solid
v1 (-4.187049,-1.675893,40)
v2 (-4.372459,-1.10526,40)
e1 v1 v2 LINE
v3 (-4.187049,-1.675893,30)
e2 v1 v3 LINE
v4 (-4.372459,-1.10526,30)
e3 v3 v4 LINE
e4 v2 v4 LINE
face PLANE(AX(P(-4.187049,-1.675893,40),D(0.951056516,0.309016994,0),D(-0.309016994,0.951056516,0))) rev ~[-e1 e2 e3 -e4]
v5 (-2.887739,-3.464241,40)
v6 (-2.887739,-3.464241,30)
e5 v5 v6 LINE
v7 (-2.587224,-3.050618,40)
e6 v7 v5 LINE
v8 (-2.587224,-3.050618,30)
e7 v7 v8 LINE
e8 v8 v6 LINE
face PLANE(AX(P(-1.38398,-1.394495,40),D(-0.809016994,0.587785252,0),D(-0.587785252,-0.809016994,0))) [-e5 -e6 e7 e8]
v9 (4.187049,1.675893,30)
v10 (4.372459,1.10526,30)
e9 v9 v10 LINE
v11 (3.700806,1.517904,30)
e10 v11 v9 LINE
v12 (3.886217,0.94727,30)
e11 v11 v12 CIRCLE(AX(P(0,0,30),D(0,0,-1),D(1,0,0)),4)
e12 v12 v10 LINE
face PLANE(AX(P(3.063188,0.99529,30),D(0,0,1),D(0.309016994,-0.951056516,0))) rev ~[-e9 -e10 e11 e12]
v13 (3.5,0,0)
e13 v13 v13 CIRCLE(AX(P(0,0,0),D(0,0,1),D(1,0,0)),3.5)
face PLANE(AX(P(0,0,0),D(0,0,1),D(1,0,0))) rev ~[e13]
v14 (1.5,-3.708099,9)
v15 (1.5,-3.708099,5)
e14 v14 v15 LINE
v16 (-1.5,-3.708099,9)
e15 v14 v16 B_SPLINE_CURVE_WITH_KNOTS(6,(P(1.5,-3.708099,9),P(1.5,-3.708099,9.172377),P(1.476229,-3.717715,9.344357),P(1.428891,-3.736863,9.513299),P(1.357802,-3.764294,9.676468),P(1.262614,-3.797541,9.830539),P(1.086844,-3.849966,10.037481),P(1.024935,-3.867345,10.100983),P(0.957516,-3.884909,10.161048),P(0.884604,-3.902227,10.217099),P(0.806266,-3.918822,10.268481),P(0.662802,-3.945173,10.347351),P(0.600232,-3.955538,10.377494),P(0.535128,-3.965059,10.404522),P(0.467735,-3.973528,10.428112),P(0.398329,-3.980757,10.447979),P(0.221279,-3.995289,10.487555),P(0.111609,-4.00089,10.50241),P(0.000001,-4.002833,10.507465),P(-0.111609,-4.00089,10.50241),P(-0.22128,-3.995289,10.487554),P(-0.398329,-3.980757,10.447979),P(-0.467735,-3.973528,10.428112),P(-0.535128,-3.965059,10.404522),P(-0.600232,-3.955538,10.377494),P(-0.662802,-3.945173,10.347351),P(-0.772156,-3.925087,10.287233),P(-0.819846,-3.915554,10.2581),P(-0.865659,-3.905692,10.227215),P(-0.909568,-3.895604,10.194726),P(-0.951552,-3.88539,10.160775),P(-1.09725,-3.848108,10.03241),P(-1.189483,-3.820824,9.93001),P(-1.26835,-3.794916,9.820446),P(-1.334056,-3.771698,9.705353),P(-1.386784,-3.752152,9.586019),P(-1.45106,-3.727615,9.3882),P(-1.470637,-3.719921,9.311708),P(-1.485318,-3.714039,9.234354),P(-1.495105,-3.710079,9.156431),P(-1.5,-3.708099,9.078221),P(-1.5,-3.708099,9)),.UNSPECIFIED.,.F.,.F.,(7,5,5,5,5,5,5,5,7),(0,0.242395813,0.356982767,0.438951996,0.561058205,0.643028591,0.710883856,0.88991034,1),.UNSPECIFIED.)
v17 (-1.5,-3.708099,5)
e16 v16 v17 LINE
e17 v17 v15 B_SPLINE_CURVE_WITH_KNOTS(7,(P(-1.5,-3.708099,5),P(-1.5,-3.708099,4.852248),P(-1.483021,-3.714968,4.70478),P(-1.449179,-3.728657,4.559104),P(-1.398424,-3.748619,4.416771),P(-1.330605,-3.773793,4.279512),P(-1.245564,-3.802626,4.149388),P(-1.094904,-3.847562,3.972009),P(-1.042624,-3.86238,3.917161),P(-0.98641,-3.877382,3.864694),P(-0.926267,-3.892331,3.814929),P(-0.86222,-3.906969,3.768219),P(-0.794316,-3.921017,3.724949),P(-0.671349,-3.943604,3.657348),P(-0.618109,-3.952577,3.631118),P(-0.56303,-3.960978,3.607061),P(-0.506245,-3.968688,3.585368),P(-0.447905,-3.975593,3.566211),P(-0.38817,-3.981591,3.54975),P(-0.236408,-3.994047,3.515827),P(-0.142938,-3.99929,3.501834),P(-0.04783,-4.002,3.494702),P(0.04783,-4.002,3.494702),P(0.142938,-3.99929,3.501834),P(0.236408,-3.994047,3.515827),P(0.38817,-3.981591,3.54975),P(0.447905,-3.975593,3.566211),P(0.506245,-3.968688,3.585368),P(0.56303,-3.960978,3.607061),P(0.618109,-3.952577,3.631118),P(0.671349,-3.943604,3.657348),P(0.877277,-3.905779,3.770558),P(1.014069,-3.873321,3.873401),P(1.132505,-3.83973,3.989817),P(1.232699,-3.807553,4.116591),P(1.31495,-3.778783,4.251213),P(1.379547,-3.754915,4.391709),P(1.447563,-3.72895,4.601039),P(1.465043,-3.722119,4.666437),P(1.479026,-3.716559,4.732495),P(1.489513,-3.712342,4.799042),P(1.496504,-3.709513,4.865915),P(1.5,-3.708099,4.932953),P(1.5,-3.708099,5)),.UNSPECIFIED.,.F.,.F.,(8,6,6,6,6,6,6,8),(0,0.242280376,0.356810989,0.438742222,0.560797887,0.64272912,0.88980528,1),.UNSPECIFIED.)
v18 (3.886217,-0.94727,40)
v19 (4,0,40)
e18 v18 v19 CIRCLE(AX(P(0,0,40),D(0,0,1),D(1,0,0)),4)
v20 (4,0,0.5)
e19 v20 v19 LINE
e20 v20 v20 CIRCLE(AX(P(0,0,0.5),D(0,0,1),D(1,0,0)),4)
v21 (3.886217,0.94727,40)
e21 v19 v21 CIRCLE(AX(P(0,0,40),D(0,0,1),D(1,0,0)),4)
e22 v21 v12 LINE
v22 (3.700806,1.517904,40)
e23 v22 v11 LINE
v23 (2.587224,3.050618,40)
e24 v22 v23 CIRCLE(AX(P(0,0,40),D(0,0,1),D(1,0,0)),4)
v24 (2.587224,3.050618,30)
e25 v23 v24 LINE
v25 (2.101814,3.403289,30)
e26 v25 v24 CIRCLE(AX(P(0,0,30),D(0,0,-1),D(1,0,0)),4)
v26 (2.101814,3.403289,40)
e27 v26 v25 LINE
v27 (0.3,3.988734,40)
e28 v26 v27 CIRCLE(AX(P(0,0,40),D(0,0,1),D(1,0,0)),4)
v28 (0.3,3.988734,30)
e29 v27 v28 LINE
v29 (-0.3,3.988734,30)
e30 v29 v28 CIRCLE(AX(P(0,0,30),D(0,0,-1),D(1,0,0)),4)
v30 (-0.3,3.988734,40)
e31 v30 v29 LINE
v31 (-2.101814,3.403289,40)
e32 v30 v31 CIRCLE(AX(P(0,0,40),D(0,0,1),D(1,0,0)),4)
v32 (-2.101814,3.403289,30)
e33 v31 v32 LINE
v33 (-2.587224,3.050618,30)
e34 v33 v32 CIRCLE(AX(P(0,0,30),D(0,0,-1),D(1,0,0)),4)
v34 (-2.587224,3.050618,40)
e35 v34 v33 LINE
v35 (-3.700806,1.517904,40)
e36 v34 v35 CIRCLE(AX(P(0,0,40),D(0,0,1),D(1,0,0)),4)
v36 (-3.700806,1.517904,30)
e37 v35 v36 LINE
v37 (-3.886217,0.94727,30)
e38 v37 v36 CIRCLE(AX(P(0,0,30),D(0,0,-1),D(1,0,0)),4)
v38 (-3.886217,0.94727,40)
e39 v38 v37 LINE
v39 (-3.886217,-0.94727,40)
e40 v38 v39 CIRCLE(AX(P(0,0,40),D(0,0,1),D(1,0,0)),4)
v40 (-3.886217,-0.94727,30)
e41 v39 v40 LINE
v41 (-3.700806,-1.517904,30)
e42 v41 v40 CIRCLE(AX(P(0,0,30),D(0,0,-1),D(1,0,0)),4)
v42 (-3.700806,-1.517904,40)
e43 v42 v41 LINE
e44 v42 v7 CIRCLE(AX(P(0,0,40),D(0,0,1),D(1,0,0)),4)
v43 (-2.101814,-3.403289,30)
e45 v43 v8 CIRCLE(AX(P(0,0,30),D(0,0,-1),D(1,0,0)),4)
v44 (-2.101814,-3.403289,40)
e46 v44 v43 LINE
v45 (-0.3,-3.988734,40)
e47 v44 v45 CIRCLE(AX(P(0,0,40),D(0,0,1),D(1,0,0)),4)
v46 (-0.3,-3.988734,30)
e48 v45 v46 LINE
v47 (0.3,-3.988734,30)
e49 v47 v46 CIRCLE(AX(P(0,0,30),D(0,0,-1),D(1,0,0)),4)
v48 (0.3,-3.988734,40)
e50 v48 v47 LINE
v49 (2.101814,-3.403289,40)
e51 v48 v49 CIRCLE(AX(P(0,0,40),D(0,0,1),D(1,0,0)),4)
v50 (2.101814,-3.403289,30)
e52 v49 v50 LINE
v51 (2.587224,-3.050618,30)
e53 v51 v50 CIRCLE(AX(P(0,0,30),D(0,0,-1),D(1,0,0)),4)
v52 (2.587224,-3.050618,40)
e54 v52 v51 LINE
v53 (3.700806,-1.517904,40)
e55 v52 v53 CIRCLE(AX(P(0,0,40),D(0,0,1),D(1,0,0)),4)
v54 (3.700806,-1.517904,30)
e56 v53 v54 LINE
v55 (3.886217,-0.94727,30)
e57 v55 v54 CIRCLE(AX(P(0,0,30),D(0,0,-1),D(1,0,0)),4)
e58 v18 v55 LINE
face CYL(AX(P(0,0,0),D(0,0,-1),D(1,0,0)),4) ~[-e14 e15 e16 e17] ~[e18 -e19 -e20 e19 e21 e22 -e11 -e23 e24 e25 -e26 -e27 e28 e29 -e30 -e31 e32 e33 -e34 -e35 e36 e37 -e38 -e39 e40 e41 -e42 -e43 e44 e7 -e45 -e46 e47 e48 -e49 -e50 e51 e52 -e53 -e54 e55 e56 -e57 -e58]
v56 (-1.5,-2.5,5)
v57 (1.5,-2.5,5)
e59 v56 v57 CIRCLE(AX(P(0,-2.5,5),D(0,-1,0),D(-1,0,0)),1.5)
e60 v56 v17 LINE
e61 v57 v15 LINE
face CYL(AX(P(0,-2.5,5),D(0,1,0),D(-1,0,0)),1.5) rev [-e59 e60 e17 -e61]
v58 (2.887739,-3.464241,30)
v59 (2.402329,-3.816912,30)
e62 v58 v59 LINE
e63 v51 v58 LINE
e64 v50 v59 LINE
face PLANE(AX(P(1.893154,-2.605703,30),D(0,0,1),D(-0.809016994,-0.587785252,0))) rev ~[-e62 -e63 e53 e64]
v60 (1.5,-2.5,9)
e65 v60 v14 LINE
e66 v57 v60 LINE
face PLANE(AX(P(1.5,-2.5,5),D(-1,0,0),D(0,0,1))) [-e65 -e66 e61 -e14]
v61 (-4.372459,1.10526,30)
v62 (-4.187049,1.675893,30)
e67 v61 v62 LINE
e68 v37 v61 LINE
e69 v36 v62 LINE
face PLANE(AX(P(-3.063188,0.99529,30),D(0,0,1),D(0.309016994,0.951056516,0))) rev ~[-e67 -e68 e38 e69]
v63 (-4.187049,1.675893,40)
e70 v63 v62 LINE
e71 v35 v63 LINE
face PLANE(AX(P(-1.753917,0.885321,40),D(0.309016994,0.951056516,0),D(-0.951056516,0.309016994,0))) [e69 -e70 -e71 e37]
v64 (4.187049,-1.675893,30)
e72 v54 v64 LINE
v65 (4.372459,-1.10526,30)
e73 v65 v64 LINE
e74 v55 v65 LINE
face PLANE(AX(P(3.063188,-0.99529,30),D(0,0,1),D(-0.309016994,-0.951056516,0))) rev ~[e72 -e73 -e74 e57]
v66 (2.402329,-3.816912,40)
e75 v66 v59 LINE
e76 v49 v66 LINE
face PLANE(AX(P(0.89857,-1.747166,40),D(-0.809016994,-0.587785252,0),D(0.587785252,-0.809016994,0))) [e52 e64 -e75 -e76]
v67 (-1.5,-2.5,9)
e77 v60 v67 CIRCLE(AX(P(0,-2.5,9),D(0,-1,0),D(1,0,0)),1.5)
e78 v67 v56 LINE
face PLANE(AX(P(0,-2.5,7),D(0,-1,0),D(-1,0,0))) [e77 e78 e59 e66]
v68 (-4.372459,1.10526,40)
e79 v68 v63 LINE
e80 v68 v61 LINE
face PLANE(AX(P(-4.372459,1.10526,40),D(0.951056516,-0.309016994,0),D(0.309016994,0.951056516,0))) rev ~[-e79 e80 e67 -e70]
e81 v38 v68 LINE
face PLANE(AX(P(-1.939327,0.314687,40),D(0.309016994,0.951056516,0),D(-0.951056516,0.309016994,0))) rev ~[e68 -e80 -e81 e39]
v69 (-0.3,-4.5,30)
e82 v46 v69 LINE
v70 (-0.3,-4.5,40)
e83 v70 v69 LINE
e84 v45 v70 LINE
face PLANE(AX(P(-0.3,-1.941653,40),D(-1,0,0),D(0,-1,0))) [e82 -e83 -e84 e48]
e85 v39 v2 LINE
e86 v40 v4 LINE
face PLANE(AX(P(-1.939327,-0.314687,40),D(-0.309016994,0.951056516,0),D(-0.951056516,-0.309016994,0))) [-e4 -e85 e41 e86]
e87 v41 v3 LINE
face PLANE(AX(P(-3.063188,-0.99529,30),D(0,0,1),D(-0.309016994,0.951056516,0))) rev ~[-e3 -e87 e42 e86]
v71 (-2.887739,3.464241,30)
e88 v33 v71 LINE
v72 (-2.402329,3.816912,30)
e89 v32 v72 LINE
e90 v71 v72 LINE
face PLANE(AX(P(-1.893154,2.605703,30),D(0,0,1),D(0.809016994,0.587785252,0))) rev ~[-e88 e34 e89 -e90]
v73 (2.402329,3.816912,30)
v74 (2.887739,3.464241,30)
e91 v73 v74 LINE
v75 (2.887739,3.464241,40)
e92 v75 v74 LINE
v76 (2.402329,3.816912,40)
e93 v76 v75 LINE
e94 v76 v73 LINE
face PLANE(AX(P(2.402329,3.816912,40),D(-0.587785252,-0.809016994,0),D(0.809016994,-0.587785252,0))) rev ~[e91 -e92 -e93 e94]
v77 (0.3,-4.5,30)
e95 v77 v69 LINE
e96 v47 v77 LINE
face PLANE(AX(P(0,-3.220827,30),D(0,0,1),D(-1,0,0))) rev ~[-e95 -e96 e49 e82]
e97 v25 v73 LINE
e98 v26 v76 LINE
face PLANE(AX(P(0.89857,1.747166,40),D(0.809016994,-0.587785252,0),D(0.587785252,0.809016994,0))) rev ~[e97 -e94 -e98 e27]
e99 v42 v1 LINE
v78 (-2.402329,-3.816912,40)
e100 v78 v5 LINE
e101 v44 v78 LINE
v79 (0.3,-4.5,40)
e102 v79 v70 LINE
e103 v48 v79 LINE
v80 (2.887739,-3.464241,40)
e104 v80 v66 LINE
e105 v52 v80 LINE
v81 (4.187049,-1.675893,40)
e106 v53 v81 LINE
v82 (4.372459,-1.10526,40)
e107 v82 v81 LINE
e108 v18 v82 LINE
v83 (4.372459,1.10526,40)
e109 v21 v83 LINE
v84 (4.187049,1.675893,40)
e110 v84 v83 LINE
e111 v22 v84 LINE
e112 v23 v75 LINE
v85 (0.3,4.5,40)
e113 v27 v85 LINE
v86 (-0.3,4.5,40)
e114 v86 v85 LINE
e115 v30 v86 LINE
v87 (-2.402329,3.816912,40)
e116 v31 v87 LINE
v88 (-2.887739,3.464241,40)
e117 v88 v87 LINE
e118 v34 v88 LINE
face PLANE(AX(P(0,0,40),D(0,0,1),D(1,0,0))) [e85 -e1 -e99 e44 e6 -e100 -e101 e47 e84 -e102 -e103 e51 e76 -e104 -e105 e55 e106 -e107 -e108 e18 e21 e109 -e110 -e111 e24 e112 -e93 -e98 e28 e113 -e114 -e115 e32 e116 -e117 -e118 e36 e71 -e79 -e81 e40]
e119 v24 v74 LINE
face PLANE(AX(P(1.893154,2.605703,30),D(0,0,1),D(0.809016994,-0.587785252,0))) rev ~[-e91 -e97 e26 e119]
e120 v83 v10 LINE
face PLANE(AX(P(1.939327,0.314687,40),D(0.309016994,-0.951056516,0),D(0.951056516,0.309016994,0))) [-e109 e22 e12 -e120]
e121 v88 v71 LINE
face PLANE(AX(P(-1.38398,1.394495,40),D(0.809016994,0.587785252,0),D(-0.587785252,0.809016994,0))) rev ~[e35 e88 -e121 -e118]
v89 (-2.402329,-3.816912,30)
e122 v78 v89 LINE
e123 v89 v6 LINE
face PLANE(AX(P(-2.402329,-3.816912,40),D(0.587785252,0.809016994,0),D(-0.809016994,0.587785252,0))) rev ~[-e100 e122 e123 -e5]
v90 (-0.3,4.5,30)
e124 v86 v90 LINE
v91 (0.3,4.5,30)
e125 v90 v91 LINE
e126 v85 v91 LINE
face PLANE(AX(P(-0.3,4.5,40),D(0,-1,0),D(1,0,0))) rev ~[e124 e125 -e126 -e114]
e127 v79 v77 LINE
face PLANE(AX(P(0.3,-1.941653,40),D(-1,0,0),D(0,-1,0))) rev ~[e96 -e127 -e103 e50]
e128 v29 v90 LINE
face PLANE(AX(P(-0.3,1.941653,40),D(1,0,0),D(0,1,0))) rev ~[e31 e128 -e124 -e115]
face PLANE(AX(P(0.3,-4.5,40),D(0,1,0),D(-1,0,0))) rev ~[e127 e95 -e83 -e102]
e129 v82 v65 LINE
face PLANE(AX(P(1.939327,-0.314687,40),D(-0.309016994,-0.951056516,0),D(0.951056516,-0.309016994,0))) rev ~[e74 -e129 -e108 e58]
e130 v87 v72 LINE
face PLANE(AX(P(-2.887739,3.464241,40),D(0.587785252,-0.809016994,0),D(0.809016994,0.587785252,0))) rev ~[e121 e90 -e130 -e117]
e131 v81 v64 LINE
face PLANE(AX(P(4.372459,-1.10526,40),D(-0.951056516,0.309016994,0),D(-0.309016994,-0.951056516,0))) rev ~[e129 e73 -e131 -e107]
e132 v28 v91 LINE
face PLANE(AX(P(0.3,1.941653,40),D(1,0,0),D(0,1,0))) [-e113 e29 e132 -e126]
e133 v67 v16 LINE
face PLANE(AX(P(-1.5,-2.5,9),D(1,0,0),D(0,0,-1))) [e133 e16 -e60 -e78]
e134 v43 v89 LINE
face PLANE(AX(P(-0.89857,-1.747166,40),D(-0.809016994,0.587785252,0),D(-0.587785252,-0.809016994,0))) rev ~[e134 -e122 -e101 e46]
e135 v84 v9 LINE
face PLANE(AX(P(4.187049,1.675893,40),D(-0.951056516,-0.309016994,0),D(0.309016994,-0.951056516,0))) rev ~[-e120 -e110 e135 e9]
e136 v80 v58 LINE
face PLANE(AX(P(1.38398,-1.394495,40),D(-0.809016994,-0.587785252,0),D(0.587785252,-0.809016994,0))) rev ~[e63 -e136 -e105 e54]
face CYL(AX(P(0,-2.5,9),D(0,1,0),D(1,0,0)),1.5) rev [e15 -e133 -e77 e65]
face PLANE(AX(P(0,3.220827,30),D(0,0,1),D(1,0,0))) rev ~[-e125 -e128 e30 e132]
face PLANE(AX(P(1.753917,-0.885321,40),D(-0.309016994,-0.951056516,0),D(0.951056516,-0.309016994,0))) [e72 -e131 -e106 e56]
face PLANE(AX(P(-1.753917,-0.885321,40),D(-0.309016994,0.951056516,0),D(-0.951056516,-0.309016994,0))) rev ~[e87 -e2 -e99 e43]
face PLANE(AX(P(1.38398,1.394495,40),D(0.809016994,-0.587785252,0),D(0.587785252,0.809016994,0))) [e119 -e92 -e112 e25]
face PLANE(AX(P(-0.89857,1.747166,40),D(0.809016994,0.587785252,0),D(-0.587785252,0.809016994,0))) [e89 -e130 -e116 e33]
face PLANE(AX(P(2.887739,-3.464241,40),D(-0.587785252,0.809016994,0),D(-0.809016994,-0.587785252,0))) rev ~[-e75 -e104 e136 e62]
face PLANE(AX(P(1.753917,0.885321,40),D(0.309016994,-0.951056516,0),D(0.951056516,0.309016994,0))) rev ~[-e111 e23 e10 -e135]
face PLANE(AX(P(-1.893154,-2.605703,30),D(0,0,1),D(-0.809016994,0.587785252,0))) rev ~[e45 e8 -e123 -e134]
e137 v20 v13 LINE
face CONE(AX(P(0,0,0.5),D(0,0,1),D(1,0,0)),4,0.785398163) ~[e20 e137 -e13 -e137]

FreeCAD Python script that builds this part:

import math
import FreeCAD as App
import Part
import Sketcher
from FreeCAD import Vector


def edges_at(feature, points):
    """Names of the edges that pass closest to the given points."""
    edges = feature.Shape.Edges
    near = lambda p: min(range(len(edges)), key=lambda i: edges[i].distToShape(Part.Vertex(*p))[0])
    return sorted({f"Edge{near(p) + 1}" for p in points})

doc = App.newDocument("Part")
body = doc.addObject("PartDesign::Body", "Body")

# Sketch on XY plane
sketch1 = doc.addObject("Sketcher::SketchObject", "Sketch")
body.addObject(sketch1)
sketch1.AttachmentSupport = (doc.XY_Plane, [""])
sketch1.MapMode = "FlatFace"
sketch1.addGeometry(Part.Circle(Vector(0, 0, 0), Vector(0, 0, 1), 4), False)
sketch1.addConstraint([
    Sketcher.Constraint("Coincident", 0, 3, -1, 1),
    Sketcher.Constraint("Diameter", 0, 8.0),
])
pad1 = doc.addObject("PartDesign::Pad", "Pad")
body.addObject(pad1)
pad1.Profile = sketch1
pad1.Length = 40

# Sketch on XZ plane
sketch2 = doc.addObject("Sketcher::SketchObject", "Sketch001")
body.addObject(sketch2)
sketch2.AttachmentSupport = (doc.XZ_Plane, [""])
sketch2.MapMode = "FlatFace"
sketch2.AttachmentOffset = App.Placement(Vector(0, 0, 2.5), App.Rotation())
sketch2.addGeometry([
    Part.LineSegment(Vector(1.5, 9, 0), Vector(1.5, 5, 0)),
    Part.ArcOfCircle(Part.Circle(Vector(0, 5, 0), Vector(0, 0, 1), 1.5), math.radians(180), math.radians(360)),
    Part.LineSegment(Vector(-1.5, 5, 0), Vector(-1.5, 9, 0)),
    Part.ArcOfCircle(Part.Circle(Vector(0, 9, 0), Vector(0, 0, 1), 1.5), math.radians(0), math.radians(180)),
], False)
sketch2.addConstraint([
    Sketcher.Constraint("Tangent", 0, 2, 1, 2),
    Sketcher.Constraint("Tangent", 1, 1, 2, 1),
    Sketcher.Constraint("Tangent", 2, 2, 3, 2),
    Sketcher.Constraint("Tangent", 3, 1, 0, 1),
    Sketcher.Constraint("Vertical", 0),
    Sketcher.Constraint("Vertical", 2),
    Sketcher.Constraint("PointOnObject", 1, 3, -2),
    Sketcher.Constraint("Radius", 1, 1.5),
    Sketcher.Constraint("DistanceY", 0, 2, 0, 1, 4.0),
    Sketcher.Constraint("DistanceY", -1, 1, 1, 3, 5.0),
])
pocket1 = doc.addObject("PartDesign::Pocket", "Pocket")
body.addObject(pocket1)
pocket1.Profile = sketch2
pocket1.Type = "ThroughAll"
pocket1.Reversed = True

# Sketch on XY plane
sketch3 = doc.addObject("Sketcher::SketchObject", "Sketch002")
body.addObject(sketch3)
sketch3.AttachmentSupport = (doc.XY_Plane, [""])
sketch3.MapMode = "FlatFace"
sketch3.AttachmentOffset = App.Placement(Vector(0, 0, 40), App.Rotation())
sketch3.addGeometry([
    Part.LineSegment(Vector(-0.3, 4.5, 0), Vector(-0.3, 1.941653, 0)),
    Part.LineSegment(Vector(-0.3, 1.941653, 0), Vector(0.3, 1.941653, 0)),
    Part.LineSegment(Vector(0.3, 1.941653, 0), Vector(0.3, 4.5, 0)),
    Part.LineSegment(Vector(0.3, 4.5, 0), Vector(-0.3, 4.5, 0)),
], False)
sketch3.addConstraint([
    Sketcher.Constraint("Coincident", 0, 2, 1, 1),
    Sketcher.Constraint("Coincident", 1, 2, 2, 1),
    Sketcher.Constraint("Coincident", 2, 2, 3, 1),
    Sketcher.Constraint("Coincident", 3, 2, 0, 1),
    Sketcher.Constraint("Vertical", 0),
    Sketcher.Constraint("Horizontal", 1),
    Sketcher.Constraint("Vertical", 2),
    Sketcher.Constraint("Horizontal", 3),
    Sketcher.Constraint("DistanceX", 1, 1, 1, 2, 0.6),
    Sketcher.Constraint("DistanceX", 0, 2, -1, 1, 0.3),
    Sketcher.Constraint("DistanceY", -1, 1, 2, 2, 4.5),
    Sketcher.Constraint("DistanceY", 0, 2, 0, 1, 2.558347),
])
pad2 = doc.addObject("PartDesign::Pad", "Pad001")
body.addObject(pad2)
pad2.Profile = sketch3
pad2.Length = 10
pad2.Reversed = True
doc.recompute()

polarpattern = doc.addObject("PartDesign::PolarPattern", "PolarPattern")
body.addObject(polarpattern)
polarpattern.Originals = [pad2]
polarpattern.Axis = (doc.Z_Axis, [""])
polarpattern.Angle = 360
polarpattern.Occurrences = 10
body.Tip = polarpattern
doc.recompute()

chamfer = doc.addObject("PartDesign::Chamfer", "Chamfer")
body.addObject(chamfer)
chamfer.Base = (polarpattern, edges_at(polarpattern, [(-4, 0, 0)]))
chamfer.Size = 0.5

doc.recompute()
